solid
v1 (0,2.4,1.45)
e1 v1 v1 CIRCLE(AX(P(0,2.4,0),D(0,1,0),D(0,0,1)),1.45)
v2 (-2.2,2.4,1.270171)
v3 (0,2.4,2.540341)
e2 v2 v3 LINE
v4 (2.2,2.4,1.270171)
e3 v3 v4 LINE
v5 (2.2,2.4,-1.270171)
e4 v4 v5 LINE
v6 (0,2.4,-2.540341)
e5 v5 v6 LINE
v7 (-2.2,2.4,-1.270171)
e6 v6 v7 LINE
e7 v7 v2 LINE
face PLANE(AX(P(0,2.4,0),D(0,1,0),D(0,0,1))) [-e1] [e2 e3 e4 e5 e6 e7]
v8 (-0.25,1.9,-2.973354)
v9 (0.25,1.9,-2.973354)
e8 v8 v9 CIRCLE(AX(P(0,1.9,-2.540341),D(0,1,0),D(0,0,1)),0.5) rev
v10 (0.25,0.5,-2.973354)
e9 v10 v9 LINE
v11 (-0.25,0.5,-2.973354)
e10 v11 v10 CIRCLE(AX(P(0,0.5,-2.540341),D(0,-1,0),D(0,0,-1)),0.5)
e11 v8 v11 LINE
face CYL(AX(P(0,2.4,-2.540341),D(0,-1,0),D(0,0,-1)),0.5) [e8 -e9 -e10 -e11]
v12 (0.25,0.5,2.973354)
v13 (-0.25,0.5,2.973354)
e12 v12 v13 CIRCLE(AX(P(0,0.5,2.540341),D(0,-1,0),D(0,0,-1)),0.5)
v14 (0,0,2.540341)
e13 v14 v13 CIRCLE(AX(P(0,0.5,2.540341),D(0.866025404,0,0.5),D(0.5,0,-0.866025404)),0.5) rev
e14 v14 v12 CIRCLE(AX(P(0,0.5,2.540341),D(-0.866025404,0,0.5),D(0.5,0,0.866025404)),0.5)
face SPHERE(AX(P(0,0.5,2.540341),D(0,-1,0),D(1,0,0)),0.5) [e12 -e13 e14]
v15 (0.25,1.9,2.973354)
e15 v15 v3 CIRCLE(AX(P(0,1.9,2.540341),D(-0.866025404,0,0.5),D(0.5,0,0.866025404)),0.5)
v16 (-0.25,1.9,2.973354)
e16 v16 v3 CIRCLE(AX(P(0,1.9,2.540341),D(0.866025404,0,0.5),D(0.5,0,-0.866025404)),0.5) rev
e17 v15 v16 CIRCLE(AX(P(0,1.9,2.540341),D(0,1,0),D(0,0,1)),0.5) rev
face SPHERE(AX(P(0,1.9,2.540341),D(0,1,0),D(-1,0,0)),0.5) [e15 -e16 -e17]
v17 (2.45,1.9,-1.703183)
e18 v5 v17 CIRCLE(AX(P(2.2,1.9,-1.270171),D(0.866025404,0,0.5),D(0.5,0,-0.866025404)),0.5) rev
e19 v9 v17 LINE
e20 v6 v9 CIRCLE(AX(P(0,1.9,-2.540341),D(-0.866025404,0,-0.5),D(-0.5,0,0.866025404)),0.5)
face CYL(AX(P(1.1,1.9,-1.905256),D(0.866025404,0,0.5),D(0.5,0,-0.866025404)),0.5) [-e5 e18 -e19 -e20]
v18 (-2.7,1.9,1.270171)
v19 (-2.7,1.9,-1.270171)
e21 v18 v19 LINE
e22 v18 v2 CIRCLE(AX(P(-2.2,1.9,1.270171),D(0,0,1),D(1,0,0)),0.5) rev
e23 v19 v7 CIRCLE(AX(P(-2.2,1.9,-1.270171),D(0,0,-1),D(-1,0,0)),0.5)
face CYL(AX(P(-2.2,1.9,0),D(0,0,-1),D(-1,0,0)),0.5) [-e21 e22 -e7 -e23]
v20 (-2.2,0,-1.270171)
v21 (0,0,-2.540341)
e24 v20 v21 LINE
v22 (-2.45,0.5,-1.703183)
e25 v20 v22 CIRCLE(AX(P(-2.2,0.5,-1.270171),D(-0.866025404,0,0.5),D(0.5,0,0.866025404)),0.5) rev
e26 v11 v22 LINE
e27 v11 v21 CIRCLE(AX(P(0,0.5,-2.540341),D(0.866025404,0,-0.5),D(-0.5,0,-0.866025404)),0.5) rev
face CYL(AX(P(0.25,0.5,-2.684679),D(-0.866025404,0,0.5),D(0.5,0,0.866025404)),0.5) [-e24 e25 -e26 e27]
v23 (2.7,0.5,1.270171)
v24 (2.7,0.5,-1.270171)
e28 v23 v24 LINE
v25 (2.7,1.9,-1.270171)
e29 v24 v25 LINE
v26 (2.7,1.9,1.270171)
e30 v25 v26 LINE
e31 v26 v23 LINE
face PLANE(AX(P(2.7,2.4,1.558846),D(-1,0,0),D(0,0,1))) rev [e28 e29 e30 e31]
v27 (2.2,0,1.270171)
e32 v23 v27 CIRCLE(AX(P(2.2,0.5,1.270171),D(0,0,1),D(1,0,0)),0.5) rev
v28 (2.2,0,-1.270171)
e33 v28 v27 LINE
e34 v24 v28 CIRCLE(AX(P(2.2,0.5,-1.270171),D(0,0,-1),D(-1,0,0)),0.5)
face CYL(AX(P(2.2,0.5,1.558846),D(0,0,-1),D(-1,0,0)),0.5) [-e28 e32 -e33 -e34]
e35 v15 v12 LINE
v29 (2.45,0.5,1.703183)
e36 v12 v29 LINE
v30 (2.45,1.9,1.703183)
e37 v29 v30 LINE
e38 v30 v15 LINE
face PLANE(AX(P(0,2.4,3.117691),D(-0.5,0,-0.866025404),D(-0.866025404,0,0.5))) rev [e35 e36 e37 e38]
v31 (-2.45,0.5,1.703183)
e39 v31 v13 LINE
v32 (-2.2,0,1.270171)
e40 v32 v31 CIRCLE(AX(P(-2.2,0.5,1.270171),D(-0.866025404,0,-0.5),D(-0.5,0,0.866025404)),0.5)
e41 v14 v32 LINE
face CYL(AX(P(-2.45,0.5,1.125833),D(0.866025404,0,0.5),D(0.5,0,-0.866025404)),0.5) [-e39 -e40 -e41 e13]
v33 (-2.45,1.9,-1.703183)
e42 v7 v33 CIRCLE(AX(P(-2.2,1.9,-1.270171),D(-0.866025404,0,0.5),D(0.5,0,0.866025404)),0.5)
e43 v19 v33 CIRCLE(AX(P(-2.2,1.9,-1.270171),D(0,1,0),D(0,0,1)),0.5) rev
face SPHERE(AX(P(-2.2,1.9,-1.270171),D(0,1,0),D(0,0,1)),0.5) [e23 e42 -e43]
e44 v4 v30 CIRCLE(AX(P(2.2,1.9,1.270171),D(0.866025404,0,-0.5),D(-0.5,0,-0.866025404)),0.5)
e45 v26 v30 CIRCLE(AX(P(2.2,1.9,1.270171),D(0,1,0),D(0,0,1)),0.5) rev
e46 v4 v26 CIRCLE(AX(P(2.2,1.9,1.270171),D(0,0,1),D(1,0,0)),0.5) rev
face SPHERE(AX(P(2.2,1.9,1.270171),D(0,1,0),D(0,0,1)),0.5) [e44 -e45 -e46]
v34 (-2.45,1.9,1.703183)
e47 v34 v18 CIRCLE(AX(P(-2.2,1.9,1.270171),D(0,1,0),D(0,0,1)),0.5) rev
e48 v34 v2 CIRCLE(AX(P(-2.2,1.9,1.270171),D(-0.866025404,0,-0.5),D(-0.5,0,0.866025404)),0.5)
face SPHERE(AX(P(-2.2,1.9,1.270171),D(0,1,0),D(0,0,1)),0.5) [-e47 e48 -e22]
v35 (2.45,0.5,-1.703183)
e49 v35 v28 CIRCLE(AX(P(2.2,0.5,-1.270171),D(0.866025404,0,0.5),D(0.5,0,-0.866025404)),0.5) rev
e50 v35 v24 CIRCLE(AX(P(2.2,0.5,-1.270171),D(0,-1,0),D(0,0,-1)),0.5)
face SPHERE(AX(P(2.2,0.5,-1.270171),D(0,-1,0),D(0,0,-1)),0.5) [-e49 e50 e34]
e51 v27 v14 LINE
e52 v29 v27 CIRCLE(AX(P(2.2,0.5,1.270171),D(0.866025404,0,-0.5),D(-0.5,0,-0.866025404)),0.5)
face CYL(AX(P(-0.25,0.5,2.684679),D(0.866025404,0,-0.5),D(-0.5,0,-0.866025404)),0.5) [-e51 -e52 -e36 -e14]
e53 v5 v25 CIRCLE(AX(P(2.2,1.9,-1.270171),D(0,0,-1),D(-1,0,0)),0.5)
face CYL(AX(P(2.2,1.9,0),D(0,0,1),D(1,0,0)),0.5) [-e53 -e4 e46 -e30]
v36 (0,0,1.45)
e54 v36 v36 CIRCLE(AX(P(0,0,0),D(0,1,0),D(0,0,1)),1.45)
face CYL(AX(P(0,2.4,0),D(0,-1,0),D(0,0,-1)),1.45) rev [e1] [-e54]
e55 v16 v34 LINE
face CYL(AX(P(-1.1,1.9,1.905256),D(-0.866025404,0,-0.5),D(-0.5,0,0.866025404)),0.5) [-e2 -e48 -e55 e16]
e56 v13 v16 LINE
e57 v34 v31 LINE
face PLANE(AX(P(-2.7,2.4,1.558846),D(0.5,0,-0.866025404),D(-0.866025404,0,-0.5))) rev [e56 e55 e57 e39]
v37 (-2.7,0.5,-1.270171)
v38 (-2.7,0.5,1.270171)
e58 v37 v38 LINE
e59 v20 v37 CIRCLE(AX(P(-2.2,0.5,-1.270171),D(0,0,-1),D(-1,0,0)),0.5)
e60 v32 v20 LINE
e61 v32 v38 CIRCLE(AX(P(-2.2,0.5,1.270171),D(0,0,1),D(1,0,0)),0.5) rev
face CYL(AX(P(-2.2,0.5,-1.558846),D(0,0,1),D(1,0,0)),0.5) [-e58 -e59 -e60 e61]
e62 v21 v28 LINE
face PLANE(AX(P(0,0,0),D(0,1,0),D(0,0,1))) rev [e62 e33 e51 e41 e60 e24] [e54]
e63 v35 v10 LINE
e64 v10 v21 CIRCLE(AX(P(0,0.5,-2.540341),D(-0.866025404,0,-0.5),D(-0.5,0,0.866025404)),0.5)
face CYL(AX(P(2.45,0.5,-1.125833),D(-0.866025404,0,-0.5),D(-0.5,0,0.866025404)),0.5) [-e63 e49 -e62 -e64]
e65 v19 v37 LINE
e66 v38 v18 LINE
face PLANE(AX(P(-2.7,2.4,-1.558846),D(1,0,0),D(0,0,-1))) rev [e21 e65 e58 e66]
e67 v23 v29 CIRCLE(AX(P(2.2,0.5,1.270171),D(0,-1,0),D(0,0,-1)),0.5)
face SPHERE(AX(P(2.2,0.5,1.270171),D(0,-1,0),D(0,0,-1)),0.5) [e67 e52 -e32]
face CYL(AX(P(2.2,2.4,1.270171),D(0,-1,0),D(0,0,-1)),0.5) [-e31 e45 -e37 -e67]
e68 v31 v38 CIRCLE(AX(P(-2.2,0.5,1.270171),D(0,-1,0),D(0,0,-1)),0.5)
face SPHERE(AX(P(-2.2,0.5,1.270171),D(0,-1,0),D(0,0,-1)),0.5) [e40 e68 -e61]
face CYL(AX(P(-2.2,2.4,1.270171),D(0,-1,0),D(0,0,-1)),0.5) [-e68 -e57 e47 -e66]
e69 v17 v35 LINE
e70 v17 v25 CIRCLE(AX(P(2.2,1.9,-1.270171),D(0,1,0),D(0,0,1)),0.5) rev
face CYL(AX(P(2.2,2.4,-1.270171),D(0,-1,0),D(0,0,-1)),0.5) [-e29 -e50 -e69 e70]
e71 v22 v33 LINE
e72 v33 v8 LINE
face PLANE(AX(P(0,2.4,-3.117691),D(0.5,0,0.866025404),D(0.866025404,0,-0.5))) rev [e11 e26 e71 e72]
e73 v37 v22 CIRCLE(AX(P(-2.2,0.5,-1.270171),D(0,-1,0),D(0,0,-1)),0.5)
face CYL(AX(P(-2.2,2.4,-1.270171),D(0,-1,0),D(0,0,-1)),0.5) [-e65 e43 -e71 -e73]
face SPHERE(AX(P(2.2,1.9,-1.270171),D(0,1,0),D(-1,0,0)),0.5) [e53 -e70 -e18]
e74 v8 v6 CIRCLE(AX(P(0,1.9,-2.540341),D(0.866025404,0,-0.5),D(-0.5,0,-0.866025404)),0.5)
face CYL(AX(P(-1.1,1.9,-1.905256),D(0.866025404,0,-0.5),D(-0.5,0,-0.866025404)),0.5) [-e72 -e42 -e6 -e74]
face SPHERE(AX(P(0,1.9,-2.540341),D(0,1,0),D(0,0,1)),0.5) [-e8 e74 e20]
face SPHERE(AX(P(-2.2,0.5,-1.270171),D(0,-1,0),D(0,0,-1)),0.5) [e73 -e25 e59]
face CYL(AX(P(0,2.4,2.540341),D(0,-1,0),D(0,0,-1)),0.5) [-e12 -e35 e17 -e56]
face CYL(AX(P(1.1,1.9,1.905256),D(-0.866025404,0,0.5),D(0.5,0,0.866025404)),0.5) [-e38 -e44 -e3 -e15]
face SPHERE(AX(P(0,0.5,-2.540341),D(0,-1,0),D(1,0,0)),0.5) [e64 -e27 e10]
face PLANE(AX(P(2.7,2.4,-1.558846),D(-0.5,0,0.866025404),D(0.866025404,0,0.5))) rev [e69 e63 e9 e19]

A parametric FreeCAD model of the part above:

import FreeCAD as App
import Part
import Sketcher

V = App.Vector
Q = App.Units.Quantity


def edges_at(feature, points):
    """Names of the edges that pass closest to the given points."""
    edges = feature.Shape.Edges
    near = lambda p: min(range(len(edges)), key=lambda i: edges[i].distToShape(Part.Vertex(*p))[0])
    return sorted({f"Edge{near(p) + 1}" for p in points})

doc = App.newDocument("Part")
body = doc.addObject("PartDesign::Body", "Body")

# Sketch on XZ plane
sketch1 = body.newObject("Sketcher::SketchObject", "Sketch")
sketch1.AttachmentSupport = (doc.getObject("XZ_Plane"), [""])
sketch1.MapMode = "FlatFace"
sketch1.addGeometry(Part.LineSegment(V(0, -3.1, 0), V(-2.7, -1.6, 0)), False)
sketch1.addGeometry(Part.LineSegment(V(-2.7, -1.6, 0), V(-2.7, 1.6, 0)), False)
sketch1.addGeometry(Part.LineSegment(V(-2.7, 1.6, 0), V(0, 3.1, 0)), False)
sketch1.addGeometry(Part.LineSegment(V(0, 3.1, 0), V(2.7, 1.6, 0)), False)
sketch1.addGeometry(Part.LineSegment(V(2.7, 1.6, 0), V(2.7, -1.6, 0)), False)
sketch1.addGeometry(Part.LineSegment(V(2.7, -1.6, 0), V(0, -3.1, 0)), False)
sketch1.addGeometry(Part.Circle(V(0, 0, 0), V(0, 0, 1), 1.4), False)
sketch1.addConstraint(Sketcher.Constraint("Coincident", 0, 2, 1, 1))
sketch1.addConstraint(Sketcher.Constraint("Coincident", 1, 2, 2, 1))
sketch1.addConstraint(Sketcher.Constraint("Coincident", 2, 2, 3, 1))
sketch1.addConstraint(Sketcher.Constraint("Coincident", 3, 2, 4, 1))
sketch1.addConstraint(Sketcher.Constraint("Coincident", 4, 2, 5, 1))
sketch1.addConstraint(Sketcher.Constraint("Coincident", 5, 2, 0, 1))
sketch1.addConstraint(Sketcher.Constraint("Vertical", 1))
sketch1.addConstraint(Sketcher.Constraint("Vertical", 4))
sketch1.addConstraint(Sketcher.Constraint("Coincident", 6, 3, -1, 1))
sketch1.addConstraint(Sketcher.Constraint("Symmetric", 0, 2, 3, 2, -1, 1))
sketch1.addConstraint(Sketcher.Constraint("Symmetric", 2, 2, 5, 2, -1, 1))
sketch1.addConstraint(Sketcher.Constraint("PointOnObject", 2, 2, -2))
sketch1.addConstraint(Sketcher.Constraint("Parallel", 2, 5))
sketch1.addConstraint(Sketcher.Constraint("Horizontal", 1, 2, 3, 2))
sketch1.addConstraint(Sketcher.Constraint("Diameter", 6, 2.9))
sketch1.addConstraint(Sketcher.Constraint("Angle", 0, Q("150 deg")))
sketch1.addConstraint(Sketcher.Constraint("DistanceX", 0, 2, -1, 1, 2.7))
sketch1.addConstraint(Sketcher.Constraint("DistanceY", 1, 1, 1, 2, 3.117691))
pad1 = body.newObject("PartDesign::Pad", "Pad")
pad1.Profile = sketch1
pad1.Length = 2.4
pad1.Reversed = True
doc.recompute()

fillet = body.newObject("PartDesign::Fillet", "Fillet")
fillet.Base = (pad1, edges_at(pad1, [
    (2.7, 1.2, -1.559),
    (2.7, 1.2, 1.559),
    (0, 1.2, 3.118),
    (-2.7, 1.2, 1.559),
    (-2.7, 1.2, -1.559),
    (0, 1.2, -3.118),
    (-2.7, 2.4, 0),
    (-1.35, 2.4, 2.338),
    (1.35, 2.4, 2.338),
    (2.7, 2.4, 0),
    (1.35, 2.4, -2.338),
    (2.7, 0, 0),
    (1.35, 0, 2.338),
    (-1.35, 0, 2.338),
    (-2.7, 0, 0),
    (-1.35, 0, -2.338),
    (1.35, 0, -2.338),
    (-1.35, 2.4, -2.338),
]))
fillet.Radius = 0.5

doc.recompute()
